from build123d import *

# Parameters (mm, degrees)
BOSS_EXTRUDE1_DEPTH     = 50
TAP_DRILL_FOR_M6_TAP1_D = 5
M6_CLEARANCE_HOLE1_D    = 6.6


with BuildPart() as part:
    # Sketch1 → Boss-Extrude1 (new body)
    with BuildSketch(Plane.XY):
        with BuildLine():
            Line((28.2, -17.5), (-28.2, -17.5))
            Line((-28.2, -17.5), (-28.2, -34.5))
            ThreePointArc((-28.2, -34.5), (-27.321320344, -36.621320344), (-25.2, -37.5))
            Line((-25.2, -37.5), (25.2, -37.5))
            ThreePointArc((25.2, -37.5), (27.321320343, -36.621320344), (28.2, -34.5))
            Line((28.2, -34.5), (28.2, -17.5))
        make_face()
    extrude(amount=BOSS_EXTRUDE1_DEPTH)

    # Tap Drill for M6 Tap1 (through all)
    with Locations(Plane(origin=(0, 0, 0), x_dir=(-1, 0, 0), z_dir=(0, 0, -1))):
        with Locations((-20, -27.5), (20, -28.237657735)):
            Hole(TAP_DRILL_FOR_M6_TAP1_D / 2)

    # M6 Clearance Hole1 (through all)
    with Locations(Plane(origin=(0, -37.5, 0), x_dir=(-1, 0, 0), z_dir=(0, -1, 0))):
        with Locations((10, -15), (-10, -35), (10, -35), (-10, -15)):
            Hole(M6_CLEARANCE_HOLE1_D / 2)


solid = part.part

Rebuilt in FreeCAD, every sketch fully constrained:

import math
import FreeCAD as App
import Part
import Sketcher
from FreeCAD import Vector

doc = App.newDocument("Part")
body = doc.addObject("PartDesign::Body", "Body")

sketch1 = body.newObject("Sketcher::SketchObject", "Sketch")
sketch1.AttachmentSupport = (doc.getObject("XY_Plane"), [""])
sketch1.MapMode = "FlatFace"
sketch1.addGeometry([
    Part.LineSegment(Vector(28.2, -17.5, 0), Vector(-28.2, -17.5, 0)),
    Part.LineSegment(Vector(-28.2, -17.5, 0), Vector(-28.2, -34.5, 0)),
    Part.ArcOfCircle(Part.Circle(Vector(-25.2, -34.5, 0), Vector(0, 0, 1), 3), math.radians(180), math.radians(270)),
    Part.LineSegment(Vector(-25.2, -37.5, 0), Vector(25.2, -37.5, 0)),
    Part.ArcOfCircle(Part.Circle(Vector(25.2, -34.5, 0), Vector(0, 0, 1), 3), math.radians(-90), math.radians(0)),
    Part.LineSegment(Vector(28.2, -34.5, 0), Vector(28.2, -17.5, 0)),
], False)
sketch1.addConstraint([
    Sketcher.Constraint("Coincident", 0, 2, 1, 1),
    Sketcher.Constraint("Tangent", 1, 2, 2, 1),
    Sketcher.Constraint("Tangent", 2, 2, 3, 1),
    Sketcher.Constraint("Tangent", 3, 2, 4, 1),
    Sketcher.Constraint("Tangent", 4, 2, 5, 1),
    Sketcher.Constraint("Coincident", 5, 2, 0, 1),
    Sketcher.Constraint("Horizontal", 0),
    Sketcher.Constraint("Vertical", 1),
    Sketcher.Constraint("Horizontal", 3),
    Sketcher.Constraint("Vertical", 5),
    Sketcher.Constraint("Equal", 2, 4),
    Sketcher.Constraint("Radius", 2, 3.0),
    Sketcher.Constraint("DistanceY", 1, 2, 1, 1, 17.0),
    Sketcher.Constraint("DistanceX", 0, 2, 0, 1, 56.4),
    Sketcher.Constraint("DistanceX", 2, 3, -1, 1, 25.2),
    Sketcher.Constraint("DistanceY", 2, 3, -1, 1, 34.5),
])
pad1 = body.newObject("PartDesign::Pad", "Pad")
pad1.Profile = sketch1
pad1.Length = 50

sketch2 = body.newObject("Sketcher::SketchObject", "Sketch001")
sketch2.AttachmentSupport = (doc.getObject("XY_Plane"), [""])
sketch2.MapMode = "FlatFace"
sketch2.addGeometry([
    Part.Circle(Vector(20, -27.5, 0), Vector(0, 0, 1), 2.5),
    Part.Circle(Vector(-20, -28.2, 0), Vector(0, 0, 1), 2.5),
], False)
sketch2.addConstraint([
    Sketcher.Constraint("Equal", 0, 1),
    Sketcher.Constraint("Diameter", 0, 5.0),
    Sketcher.Constraint("DistanceX", -1, 1, 0, 3, 20.0),
    Sketcher.Constraint("DistanceX", 1, 3, -1, 1, 20.0),
    Sketcher.Constraint("DistanceY", 0, 3, -1, 1, 27.5),
    Sketcher.Constraint("DistanceY", 1, 3, -1, 1, 28.237658),
])
doc.recompute()
hole = body.newObject("PartDesign::Hole", "Hole")
hole.Profile = sketch2
hole.ThreadType = "None"
hole.Diameter = 5
hole.DepthType = "ThroughAll"
hole.Reversed = True

sketch3 = body.newObject("Sketcher::SketchObject", "Sketch002")
sketch3.AttachmentSupport = (doc.getObject("XZ_Plane"), [""])
sketch3.MapMode = "FlatFace"
sketch3.AttachmentOffset = App.Placement(Vector(0, 0, 37.5), App.Rotation())
sketch3.addGeometry([
    Part.Circle(Vector(-10, 15, 0), Vector(0, 0, 1), 3.3),
    Part.Circle(Vector(10, 35, 0), Vector(0, 0, 1), 3.3),
    Part.Circle(Vector(-10, 35, 0), Vector(0, 0, 1), 3.3),
    Part.Circle(Vector(10, 15, 0), Vector(0, 0, 1), 3.3),
], False)
sketch3.addConstraint([
    Sketcher.Constraint("Equal", 0, 1),
    Sketcher.Constraint("Equal", 1, 2),
    Sketcher.Constraint("Equal", 2, 3),
    Sketcher.Constraint("Symmetric", 1, 3, 2, 3, -2),
    Sketcher.Constraint("Symmetric", 0, 3, 3, 3, -2),
    Sketcher.Constraint("Vertical", 0, 3, 2, 3),
    Sketcher.Constraint("Diameter", 0, 6.6),
    Sketcher.Constraint("DistanceX", 0, 3, -1, 1, 10.0),
    Sketcher.Constraint("DistanceY", -1, 1, 0, 3, 15.0),
    Sketcher.Constraint("DistanceY", -1, 1, 1, 3, 35.0),
])
doc.recompute()
hole2 = body.newObject("PartDesign::Hole", "Hole001")
hole2.Profile = sketch3
hole2.ThreadType = "None"
hole2.Diameter = 6.6
hole2.DepthType = "ThroughAll"

doc.recompute()
